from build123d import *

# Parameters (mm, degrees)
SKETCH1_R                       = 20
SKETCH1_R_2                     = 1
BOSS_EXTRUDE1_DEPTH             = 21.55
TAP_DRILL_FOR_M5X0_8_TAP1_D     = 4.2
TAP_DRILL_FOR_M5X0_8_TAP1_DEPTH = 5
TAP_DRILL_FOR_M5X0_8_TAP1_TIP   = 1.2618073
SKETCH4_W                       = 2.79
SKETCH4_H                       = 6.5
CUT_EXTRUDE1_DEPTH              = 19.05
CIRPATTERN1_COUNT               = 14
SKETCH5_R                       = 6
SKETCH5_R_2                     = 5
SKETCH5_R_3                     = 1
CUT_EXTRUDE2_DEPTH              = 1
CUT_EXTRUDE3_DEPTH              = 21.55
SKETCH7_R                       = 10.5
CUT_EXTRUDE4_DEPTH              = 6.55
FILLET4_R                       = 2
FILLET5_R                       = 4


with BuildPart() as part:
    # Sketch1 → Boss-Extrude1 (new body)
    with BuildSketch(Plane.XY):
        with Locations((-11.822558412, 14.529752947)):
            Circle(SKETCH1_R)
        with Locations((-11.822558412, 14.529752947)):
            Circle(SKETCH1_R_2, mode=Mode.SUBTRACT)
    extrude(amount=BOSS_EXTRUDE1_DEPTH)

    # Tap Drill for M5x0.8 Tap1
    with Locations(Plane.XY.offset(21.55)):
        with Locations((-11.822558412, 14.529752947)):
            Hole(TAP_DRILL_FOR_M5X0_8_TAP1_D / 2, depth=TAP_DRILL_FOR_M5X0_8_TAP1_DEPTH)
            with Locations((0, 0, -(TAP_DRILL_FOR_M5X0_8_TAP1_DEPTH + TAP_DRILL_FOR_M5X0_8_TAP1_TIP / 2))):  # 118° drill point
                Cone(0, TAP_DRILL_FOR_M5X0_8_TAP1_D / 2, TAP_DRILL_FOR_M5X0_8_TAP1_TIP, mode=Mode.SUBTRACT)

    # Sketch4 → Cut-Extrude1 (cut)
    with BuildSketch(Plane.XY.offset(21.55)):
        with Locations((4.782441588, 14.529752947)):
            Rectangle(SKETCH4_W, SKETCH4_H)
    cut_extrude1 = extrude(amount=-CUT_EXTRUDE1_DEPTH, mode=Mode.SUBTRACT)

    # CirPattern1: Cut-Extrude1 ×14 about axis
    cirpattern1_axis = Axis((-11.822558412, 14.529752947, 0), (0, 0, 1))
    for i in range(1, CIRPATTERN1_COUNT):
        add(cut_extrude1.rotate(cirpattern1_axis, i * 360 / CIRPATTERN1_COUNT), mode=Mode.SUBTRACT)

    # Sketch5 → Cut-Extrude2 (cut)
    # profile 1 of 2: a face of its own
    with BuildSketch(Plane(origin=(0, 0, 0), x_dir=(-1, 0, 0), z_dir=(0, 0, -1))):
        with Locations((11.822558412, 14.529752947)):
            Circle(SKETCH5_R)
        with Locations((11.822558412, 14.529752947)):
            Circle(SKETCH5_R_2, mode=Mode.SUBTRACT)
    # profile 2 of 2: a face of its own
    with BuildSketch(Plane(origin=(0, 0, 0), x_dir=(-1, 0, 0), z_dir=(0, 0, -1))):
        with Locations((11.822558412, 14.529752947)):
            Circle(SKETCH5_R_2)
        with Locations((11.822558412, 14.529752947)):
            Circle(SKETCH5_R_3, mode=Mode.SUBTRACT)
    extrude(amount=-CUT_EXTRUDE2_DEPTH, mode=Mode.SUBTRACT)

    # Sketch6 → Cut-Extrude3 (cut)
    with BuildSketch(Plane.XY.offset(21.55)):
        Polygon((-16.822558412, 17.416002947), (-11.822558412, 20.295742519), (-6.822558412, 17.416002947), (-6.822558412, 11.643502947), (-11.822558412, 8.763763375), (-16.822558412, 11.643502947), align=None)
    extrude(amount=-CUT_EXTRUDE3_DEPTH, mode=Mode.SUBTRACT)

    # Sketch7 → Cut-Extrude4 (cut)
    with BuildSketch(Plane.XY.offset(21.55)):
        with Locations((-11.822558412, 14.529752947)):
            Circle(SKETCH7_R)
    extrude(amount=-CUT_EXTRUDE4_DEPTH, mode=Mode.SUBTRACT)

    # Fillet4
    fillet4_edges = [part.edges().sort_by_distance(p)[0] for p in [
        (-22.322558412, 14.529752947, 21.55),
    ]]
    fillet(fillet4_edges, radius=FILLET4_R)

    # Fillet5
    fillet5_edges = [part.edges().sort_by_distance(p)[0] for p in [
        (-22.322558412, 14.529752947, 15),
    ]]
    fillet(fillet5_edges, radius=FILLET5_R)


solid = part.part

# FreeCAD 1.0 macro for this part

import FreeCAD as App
import Part
import Sketcher


def edges_at(feature, points):
    """Names of the edges that pass closest to the given points."""
    edges = feature.Shape.Edges
    near = lambda p: min(range(len(edges)), key=lambda i: edges[i].distToShape(Part.Vertex(*p))[0])
    return sorted({f"Edge{near(p) + 1}" for p in points})


def add_polygon(sketch, points):
    """Adds a closed chain of lines whose ends are joined by coincident constraints."""
    first, n = sketch.GeometryCount, len(points)
    for a, b in zip(points, points[1:] + points[:1]):
        sketch.addGeometry(Part.LineSegment(App.Vector(*a, 0), App.Vector(*b, 0)), False)
    for i in range(n):
        sketch.addConstraint(Sketcher.Constraint("Coincident", first + i, 2, first + (i + 1) % n, 1))

doc = App.newDocument("Part")
body = doc.addObject("PartDesign::Body", "Body")

# Sketch on XY plane
sketch1 = body.newObject("Sketcher::SketchObject", "Sketch")
sketch1.AttachmentSupport = (doc.getObject("XY_Plane"), [""])
sketch1.MapMode = "FlatFace"
sketch1.addGeometry([
    Part.Circle(App.Vector(-11.8, 14.5, 0), App.Vector(0, 0, 1), 20),
    Part.Circle(App.Vector(-11.8, 14.5, 0), App.Vector(0, 0, 1), 1),
], False)
sketch1.addConstraint([
    Sketcher.Constraint("Coincident", 1, 3, 0, 3),
    Sketcher.Constraint("Diameter", 0, 40.0),
    Sketcher.Constraint("Diameter", 1, 2.0),
    Sketcher.Constraint("DistanceX", 0, 3, -1, 1, 11.822558),
    Sketcher.Constraint("DistanceY", -1, 1, 0, 3, 14.529753),
])
pad1 = body.newObject("PartDesign::Pad", "Pad")
pad1.Profile = sketch1
pad1.Length = 21.55

# Sketch on XY plane
sketch2 = body.newObject("Sketcher::SketchObject", "Sketch001")
sketch2.AttachmentSupport = (doc.getObject("XY_Plane"), [""])
sketch2.MapMode = "FlatFace"
sketch2.AttachmentOffset = App.Placement(App.Vector(0, 0, 21.55), App.Rotation())
sketch2.addGeometry(Part.Circle(App.Vector(-11.8, 14.5, 0), App.Vector(0, 0, 1), 2.1), False)
sketch2.addConstraint([
    Sketcher.Constraint("Diameter", 0, 4.2),
    Sketcher.Constraint("DistanceX", 0, 3, -1, 1, 11.822558),
    Sketcher.Constraint("DistanceY", -1, 1, 0, 3, 14.529753),
])
doc.recompute()
hole = body.newObject("PartDesign::Hole", "Hole")
hole.Profile = sketch2
hole.ThreadType = "None"
hole.Diameter = 4.2
hole.DepthType = "Dimension"
hole.Depth = 5
hole.DrillPoint = "Angled"
hole.DrillPointAngle = 118

# Sketch on XY plane
sketch3 = body.newObject("Sketcher::SketchObject", "Sketch002")
sketch3.AttachmentSupport = (doc.getObject("XY_Plane"), [""])
sketch3.MapMode = "FlatFace"
sketch3.AttachmentOffset = App.Placement(App.Vector(0, 0, 21.55), App.Rotation())
add_polygon(sketch3, [(3.4, 17.8), (3.4, 11.3), (6.2, 11.3), (6.2, 17.8)])  # lines 0-3
sketch3.addConstraint([
    Sketcher.Constraint("Vertical", 0),
    Sketcher.Constraint("Horizontal", 1),
    Sketcher.Constraint("Vertical", 2),
    Sketcher.Constraint("Horizontal", 3),
    Sketcher.Constraint("DistanceY", 0, 2, 0, 1, 6.5),
    Sketcher.Constraint("DistanceX", 1, 1, 1, 2, 2.79),
    Sketcher.Constraint("DistanceX", -1, 1, 0, 2, 3.387442),
    Sketcher.Constraint("DistanceY", -1, 1, 0, 2, 11.279753),
])
pocket1 = body.newObject("PartDesign::Pocket", "Pocket")
pocket1.Profile = sketch3
pocket1.Length = 19.05
doc.recompute()

datumline = body.newObject("PartDesign::Line", "DatumLine")
datumline.Placement = App.Placement(App.Vector(-11.822558, 14.529753, 0), App.Rotation(App.Vector(0, 0, 1), App.Vector(0, 0, 1)))
polarpattern = body.newObject("PartDesign::PolarPattern", "PolarPattern")
polarpattern.Originals = [pocket1]
polarpattern.Axis = (datumline, [""])
polarpattern.Angle = 360
polarpattern.Occurrences = 14
body.Tip = polarpattern

# Sketch on XY plane
sketch4 = body.newObject("Sketcher::SketchObject", "Sketch003")
sketch4.AttachmentSupport = (doc.getObject("XY_Plane"), [""])
sketch4.MapMode = "FlatFace"
sketch4.addGeometry([
    Part.Circle(App.Vector(-11.8, 14.5, 0), App.Vector(0, 0, 1), 6),
    Part.Circle(App.Vector(-11.8, 14.5, 0), App.Vector(0, 0, 1), 1),
], False)
sketch4.addConstraint([
    Sketcher.Constraint("Coincident", 1, 3, 0, 3),
    Sketcher.Constraint("Diameter", 0, 12.0),
    Sketcher.Constraint("Diameter", 1, 2.0),
    Sketcher.Constraint("DistanceX", 0, 3, -1, 1, 11.822558),
    Sketcher.Constraint("DistanceY", -1, 1, 0, 3, 14.529753),
])
pocket2 = body.newObject("PartDesign::Pocket", "Pocket001")
pocket2.Profile = sketch4
pocket2.Length = 1
pocket2.Reversed = True

# Sketch on XY plane
sketch5 = body.newObject("Sketcher::SketchObject", "Sketch004")
sketch5.AttachmentSupport = (doc.getObject("XY_Plane"), [""])
sketch5.MapMode = "FlatFace"
sketch5.AttachmentOffset = App.Placement(App.Vector(0, 0, 21.55), App.Rotation())
add_polygon(sketch5, [(-12, 20), (-17, 17), (-17, 12), (-12, 9), (-7, 12), (-7, 17)])  # lines 0-5
sketch5.addConstraint([
    Sketcher.Constraint("Vertical", 1),
    Sketcher.Constraint("Vertical", 4),
    Sketcher.Constraint("Parallel", 0, 3),
    Sketcher.Constraint("Parallel", 2, 5),
    Sketcher.Constraint("Horizontal", 1, 2, 3, 2),
    Sketcher.Constraint("Horizontal", 0, 2, 4, 2),
    Sketcher.Constraint("Vertical", 2, 2, 5, 2),
    Sketcher.Constraint("DistanceX", 1, 2, 2, 2, 5.0),
    Sketcher.Constraint("Distance", 0, 5.77),
    Sketcher.Constraint("DistanceY", 1, 2, 1, 1, 5.7725),
    Sketcher.Constraint("DistanceX", 0, 2, -1, 1, 16.822558),
    Sketcher.Constraint("DistanceY", -1, 1, 0, 2, 17.416003),
])
pocket3 = body.newObject("PartDesign::Pocket", "Pocket002")
pocket3.Profile = sketch5
pocket3.Length = 21.55

# Sketch on XY plane
sketch6 = body.newObject("Sketcher::SketchObject", "Sketch005")
sketch6.AttachmentSupport = (doc.getObject("XY_Plane"), [""])
sketch6.MapMode = "FlatFace"
sketch6.AttachmentOffset = App.Placement(App.Vector(0, 0, 21.55), App.Rotation())
sketch6.addGeometry(Part.Circle(App.Vector(-12, 15, 0), App.Vector(0, 0, 1), 10), False)
sketch6.addConstraint([
    Sketcher.Constraint("Diameter", 0, 21.0),
    Sketcher.Constraint("DistanceX", 0, 3, -1, 1, 11.822558),
    Sketcher.Constraint("DistanceY", -1, 1, 0, 3, 14.529753),
])
pocket4 = body.newObject("PartDesign::Pocket", "Pocket003")
pocket4.Profile = sketch6
pocket4.Length = 6.55
doc.recompute()

fillet = body.newObject("PartDesign::Fillet", "Fillet")
fillet.Base = (pocket4, edges_at(pocket4, [(-22.323, 14.53, 21.55)]))
fillet.Radius = 2
doc.recompute()

fillet2 = body.newObject("PartDesign::Fillet", "Fillet001")
fillet2.Base = (fillet, edges_at(fillet, [(-22.323, 14.53, 15)]))
fillet2.Radius = 4

doc.recompute()
